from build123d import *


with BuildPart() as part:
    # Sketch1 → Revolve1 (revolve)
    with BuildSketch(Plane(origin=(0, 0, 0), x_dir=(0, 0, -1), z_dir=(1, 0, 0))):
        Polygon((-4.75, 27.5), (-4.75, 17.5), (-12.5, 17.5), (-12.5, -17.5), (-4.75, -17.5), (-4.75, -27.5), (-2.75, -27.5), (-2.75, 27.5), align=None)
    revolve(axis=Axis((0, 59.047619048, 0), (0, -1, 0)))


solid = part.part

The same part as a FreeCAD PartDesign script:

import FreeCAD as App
import Part
import Sketcher

V = App.Vector

doc = App.newDocument("Part")
params = doc.addObject("Spreadsheet::Sheet", "Params")
for row, (alias, value) in enumerate([
    ("sketch1_width", "10 mm"),
    ("sketch1_width2", "35 mm"),
    ("sketch1_height", "2 mm"),
    ("sketch1_height2", "7.75 mm"),
    ("revolution_angle", "360 deg"),
], start=1):
    params.set(f"A{row}", alias)
    params.set(f"B{row}", "=" + value)
    params.setAlias(f"B{row}", alias)

body = doc.addObject("PartDesign::Body", "Body")

# Sketch on YZ plane
sketch1 = body.newObject("Sketcher::SketchObject", "Sketch")
sketch1.AttachmentSupport = (doc.getObject("YZ_Plane"), [""])
sketch1.MapMode = "FlatFace"
sketch1.addGeometry(Part.LineSegment(V(27.5, 4.75, 0), V(17.5, 4.75, 0)), False)
sketch1.addGeometry(Part.LineSegment(V(17.5, 4.75, 0), V(17.5, 12.5, 0)), False)
sketch1.addGeometry(Part.LineSegment(V(17.5, 12.5, 0), V(-17.5, 12.5, 0)), False)
sketch1.addGeometry(Part.LineSegment(V(-17.5, 12.5, 0), V(-17.5, 4.75, 0)), False)
sketch1.addGeometry(Part.LineSegment(V(-17.5, 4.75, 0), V(-27.5, 4.75, 0)), False)
sketch1.addGeometry(Part.LineSegment(V(-27.5, 4.75, 0), V(-27.5, 2.75, 0)), False)
sketch1.addGeometry(Part.LineSegment(V(-27.5, 2.75, 0), V(27.5, 2.75, 0)), False)
sketch1.addGeometry(Part.LineSegment(V(27.5, 2.75, 0), V(27.5, 4.75, 0)), False)
sketch1.addConstraint(Sketcher.Constraint("Coincident", 0, 2, 1, 1))
sketch1.addConstraint(Sketcher.Constraint("Coincident", 1, 2, 2, 1))
sketch1.addConstraint(Sketcher.Constraint("Coincident", 2, 2, 3, 1))
sketch1.addConstraint(Sketcher.Constraint("Coincident", 3, 2, 4, 1))
sketch1.addConstraint(Sketcher.Constraint("Coincident", 4, 2, 5, 1))
sketch1.addConstraint(Sketcher.Constraint("Coincident", 5, 2, 6, 1))
sketch1.addConstraint(Sketcher.Constraint("Coincident", 6, 2, 7, 1))
sketch1.addConstraint(Sketcher.Constraint("Coincident", 7, 2, 0, 1))
sketch1.addConstraint(Sketcher.Constraint("Horizontal", 0))
sketch1.addConstraint(Sketcher.Constraint("Vertical", 1))
sketch1.addConstraint(Sketcher.Constraint("Horizontal", 2))
sketch1.addConstraint(Sketcher.Constraint("Vertical", 3))
sketch1.addConstraint(Sketcher.Constraint("Horizontal", 4))
sketch1.addConstraint(Sketcher.Constraint("Vertical", 5))
sketch1.addConstraint(Sketcher.Constraint("Horizontal", 6))
sketch1.addConstraint(Sketcher.Constraint("Vertical", 7))
sketch1.addConstraint(Sketcher.Constraint("Symmetric", 0, 2, 3, 2, -2))
sketch1.addConstraint(Sketcher.Constraint("Equal", 0, 4))
sketch1.addConstraint(Sketcher.Constraint("DistanceX", 0, 2, 0, 1, 10.0))
sketch1.addConstraint(Sketcher.Constraint("DistanceX", 2, 2, 2, 1, 35.0))
sketch1.addConstraint(Sketcher.Constraint("DistanceY", 5, 2, 5, 1, 2.0))
sketch1.addConstraint(Sketcher.Constraint("DistanceY", 1, 1, 1, 2, 7.75))
sketch1.addConstraint(Sketcher.Constraint("DistanceY", -1, 1, 1, 2, 12.5))
sketch1.setExpression("Constraints[18]", "Params.sketch1_width")
sketch1.setExpression("Constraints[19]", "Params.sketch1_width2")
sketch1.setExpression("Constraints[20]", "Params.sketch1_height")
sketch1.setExpression("Constraints[21]", "Params.sketch1_height2")
revolution = body.newObject("PartDesign::Revolution", "Revolution")
revolution.Profile = sketch1
revolution.ReferenceAxis = (sketch1, ["H_Axis"])
revolution.setExpression("Angle", "Params.revolution_angle")

doc.recompute()
